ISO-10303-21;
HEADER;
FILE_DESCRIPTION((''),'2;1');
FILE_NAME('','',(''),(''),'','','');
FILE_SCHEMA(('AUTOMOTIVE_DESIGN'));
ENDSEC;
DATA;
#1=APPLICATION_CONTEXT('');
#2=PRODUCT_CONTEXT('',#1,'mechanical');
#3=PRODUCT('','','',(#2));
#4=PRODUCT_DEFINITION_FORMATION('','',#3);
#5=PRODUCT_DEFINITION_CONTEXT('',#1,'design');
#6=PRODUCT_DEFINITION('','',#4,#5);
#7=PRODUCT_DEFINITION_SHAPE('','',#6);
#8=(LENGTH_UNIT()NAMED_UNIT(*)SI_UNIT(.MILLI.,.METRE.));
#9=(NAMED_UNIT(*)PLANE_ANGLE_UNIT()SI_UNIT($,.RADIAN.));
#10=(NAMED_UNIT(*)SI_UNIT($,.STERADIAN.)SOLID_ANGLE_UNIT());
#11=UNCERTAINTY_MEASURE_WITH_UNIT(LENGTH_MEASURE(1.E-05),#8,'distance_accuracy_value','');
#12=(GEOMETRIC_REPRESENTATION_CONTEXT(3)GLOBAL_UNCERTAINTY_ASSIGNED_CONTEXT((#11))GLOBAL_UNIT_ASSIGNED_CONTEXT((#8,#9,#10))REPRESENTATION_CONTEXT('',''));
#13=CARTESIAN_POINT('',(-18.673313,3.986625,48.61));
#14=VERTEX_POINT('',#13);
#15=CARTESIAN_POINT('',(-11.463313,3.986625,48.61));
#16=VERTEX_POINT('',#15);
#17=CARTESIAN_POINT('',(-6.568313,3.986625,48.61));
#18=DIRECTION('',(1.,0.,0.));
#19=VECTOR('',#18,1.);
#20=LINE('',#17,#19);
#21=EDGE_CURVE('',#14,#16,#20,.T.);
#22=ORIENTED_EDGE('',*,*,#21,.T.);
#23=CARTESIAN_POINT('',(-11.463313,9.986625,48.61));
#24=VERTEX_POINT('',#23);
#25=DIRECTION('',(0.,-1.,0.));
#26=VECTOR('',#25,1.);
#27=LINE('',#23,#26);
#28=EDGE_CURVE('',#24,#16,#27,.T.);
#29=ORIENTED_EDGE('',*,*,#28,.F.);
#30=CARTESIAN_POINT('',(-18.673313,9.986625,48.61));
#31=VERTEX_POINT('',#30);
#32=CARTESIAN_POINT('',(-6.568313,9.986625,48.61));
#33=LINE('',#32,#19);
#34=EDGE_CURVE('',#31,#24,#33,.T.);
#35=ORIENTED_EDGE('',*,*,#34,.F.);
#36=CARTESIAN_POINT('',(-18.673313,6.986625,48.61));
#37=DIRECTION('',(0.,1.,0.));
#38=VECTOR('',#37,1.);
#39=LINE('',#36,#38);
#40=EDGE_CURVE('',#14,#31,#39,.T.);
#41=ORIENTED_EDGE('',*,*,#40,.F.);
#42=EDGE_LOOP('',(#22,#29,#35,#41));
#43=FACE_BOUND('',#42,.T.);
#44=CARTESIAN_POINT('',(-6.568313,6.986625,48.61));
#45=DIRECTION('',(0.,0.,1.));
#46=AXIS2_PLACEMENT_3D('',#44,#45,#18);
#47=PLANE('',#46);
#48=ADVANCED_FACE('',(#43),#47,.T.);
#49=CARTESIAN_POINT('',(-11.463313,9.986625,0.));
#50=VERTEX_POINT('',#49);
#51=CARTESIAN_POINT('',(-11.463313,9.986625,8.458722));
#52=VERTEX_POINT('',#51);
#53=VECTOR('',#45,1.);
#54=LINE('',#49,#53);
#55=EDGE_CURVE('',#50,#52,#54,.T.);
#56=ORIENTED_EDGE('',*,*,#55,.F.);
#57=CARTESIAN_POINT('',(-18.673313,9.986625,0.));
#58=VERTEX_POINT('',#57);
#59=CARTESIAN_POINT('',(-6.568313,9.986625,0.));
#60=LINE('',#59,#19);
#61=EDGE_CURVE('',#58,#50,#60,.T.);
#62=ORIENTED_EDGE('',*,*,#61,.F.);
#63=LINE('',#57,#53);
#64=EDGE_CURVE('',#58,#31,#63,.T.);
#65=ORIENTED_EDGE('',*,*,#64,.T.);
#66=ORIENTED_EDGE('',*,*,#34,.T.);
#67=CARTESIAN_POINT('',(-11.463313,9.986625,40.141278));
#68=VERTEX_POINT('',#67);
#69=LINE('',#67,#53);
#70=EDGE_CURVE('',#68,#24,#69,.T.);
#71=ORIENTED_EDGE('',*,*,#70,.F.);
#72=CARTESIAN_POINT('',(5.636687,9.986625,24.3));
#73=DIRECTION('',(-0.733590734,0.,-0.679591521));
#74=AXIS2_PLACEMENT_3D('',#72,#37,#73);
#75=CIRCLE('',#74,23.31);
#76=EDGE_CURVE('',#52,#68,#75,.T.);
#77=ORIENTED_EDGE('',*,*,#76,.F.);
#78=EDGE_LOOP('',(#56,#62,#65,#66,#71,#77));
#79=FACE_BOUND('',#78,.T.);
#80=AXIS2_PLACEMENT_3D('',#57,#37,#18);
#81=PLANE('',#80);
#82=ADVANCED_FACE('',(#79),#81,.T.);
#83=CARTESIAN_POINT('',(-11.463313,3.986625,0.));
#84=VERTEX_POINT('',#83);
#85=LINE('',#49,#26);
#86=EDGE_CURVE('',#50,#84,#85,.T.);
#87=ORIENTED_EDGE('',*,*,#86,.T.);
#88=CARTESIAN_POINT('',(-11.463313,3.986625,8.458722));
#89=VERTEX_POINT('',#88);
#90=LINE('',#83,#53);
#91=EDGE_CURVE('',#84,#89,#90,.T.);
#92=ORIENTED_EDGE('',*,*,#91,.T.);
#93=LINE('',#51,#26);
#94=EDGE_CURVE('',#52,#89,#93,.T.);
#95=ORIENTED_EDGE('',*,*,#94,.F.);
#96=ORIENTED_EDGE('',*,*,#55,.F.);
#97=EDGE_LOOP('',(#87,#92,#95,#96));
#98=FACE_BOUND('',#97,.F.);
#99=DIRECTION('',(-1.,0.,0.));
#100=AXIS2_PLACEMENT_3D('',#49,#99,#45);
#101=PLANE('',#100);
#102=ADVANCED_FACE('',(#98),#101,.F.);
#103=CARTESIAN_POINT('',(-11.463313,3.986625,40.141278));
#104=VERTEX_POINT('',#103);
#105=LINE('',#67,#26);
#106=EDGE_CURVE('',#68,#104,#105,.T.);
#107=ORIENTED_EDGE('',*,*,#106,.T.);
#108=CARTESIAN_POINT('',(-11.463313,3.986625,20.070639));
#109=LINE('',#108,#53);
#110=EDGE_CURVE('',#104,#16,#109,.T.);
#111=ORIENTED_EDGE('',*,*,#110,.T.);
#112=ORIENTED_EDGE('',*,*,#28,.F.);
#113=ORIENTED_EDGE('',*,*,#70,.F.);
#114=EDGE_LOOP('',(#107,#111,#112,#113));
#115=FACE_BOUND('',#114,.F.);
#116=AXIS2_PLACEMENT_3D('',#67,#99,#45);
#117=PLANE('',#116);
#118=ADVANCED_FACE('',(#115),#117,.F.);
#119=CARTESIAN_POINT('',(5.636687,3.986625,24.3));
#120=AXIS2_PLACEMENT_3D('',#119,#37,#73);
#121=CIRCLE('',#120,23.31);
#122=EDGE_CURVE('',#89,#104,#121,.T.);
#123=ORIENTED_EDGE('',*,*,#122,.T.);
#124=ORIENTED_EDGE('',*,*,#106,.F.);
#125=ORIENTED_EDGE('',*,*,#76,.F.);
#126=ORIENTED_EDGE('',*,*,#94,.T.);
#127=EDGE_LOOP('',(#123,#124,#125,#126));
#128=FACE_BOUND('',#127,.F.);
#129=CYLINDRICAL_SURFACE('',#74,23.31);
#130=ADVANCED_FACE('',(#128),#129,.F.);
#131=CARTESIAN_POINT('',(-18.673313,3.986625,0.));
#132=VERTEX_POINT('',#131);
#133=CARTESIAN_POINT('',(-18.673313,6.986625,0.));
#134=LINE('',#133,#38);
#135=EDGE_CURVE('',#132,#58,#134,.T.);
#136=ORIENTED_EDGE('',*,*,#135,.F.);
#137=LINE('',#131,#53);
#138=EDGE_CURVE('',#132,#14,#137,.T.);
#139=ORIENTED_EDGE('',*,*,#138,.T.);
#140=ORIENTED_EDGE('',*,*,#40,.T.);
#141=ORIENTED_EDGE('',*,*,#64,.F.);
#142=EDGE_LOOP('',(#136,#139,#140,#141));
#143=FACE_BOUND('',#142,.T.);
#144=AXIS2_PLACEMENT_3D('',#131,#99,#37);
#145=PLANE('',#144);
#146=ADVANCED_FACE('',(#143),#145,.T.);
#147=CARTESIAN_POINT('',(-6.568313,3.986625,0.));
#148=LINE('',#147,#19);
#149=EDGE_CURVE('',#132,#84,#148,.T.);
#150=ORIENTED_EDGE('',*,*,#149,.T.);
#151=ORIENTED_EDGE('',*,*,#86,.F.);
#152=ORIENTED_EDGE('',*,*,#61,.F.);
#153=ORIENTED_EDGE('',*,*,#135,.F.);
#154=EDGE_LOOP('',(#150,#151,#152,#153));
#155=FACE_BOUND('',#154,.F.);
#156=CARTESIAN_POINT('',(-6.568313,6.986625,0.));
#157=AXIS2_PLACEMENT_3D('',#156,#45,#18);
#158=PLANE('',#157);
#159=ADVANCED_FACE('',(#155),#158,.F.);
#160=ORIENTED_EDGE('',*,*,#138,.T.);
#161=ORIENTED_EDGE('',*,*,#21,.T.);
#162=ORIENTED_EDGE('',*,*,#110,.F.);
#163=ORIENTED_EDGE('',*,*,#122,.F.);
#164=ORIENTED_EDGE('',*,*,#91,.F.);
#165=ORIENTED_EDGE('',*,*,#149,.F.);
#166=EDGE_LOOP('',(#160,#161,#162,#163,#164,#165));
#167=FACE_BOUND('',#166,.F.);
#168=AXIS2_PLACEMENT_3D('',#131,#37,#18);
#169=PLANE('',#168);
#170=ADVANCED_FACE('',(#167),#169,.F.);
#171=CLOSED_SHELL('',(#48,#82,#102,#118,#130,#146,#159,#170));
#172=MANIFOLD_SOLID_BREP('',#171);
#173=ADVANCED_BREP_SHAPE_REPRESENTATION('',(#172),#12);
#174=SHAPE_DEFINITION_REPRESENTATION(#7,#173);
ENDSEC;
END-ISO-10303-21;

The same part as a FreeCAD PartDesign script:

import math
import FreeCAD as App
import Part
import Sketcher


def add_polygon(sketch, points):
    """Adds a closed chain of lines whose ends are joined by coincident constraints."""
    first, n = sketch.GeometryCount, len(points)
    for a, b in zip(points, points[1:] + points[:1]):
        sketch.addGeometry(Part.LineSegment(App.Vector(*a, 0), App.Vector(*b, 0)), False)
    for i in range(n):
        sketch.addConstraint(Sketcher.Constraint("Coincident", first + i, 2, first + (i + 1) % n, 1))

doc = App.newDocument("Part")
params = doc.addObject("Spreadsheet::Sheet", "Params")
for row, (alias, value) in enumerate([
    ("sketch1_height", "6 mm"),
    ("sketch1_width", "24.21 mm"),
    ("pad1_length", "48.61 mm"),
    ("sketch2_width", "17 mm"),
    ("sketch2_radius", "23.31 mm"),
    ("sketch2_height", "48.61 mm"),
], start=1):
    params.set(f"A{row}", alias)
    params.set(f"B{row}", "=" + value)
    params.setAlias(f"B{row}", alias)

body = doc.addObject("PartDesign::Body", "Body")

# Sketch on XY plane
sketch1 = doc.addObject("Sketcher::SketchObject", "Sketch")
body.addObject(sketch1)
sketch1.AttachmentSupport = (doc.XY_Plane, [""])
sketch1.MapMode = "FlatFace"
add_polygon(sketch1, [(-19, 10), (-19, 4), (6, 4), (6, 10)])  # lines 0-3
sketch1.addConstraint([
    Sketcher.Constraint("Vertical", 0),
    Sketcher.Constraint("Horizontal", 1),
    Sketcher.Constraint("Vertical", 2),
    Sketcher.Constraint("Horizontal", 3),
    Sketcher.Constraint("DistanceY", 0, 2, 0, 1, 6.0),
    Sketcher.Constraint("DistanceX", 1, 1, 1, 2, 24.21),
    Sketcher.Constraint("DistanceX", 0, 2, -1, 1, 18.673313),
    Sketcher.Constraint("DistanceY", -1, 1, 0, 2, 3.986625),
])
sketch1.setExpression("Constraints[8]", "Params.sketch1_height")
sketch1.setExpression("Constraints[9]", "Params.sketch1_width")
pad1 = doc.addObject("PartDesign::Pad", "Pad")
body.addObject(pad1)
pad1.Profile = sketch1
pad1.setExpression("Length", "Params.pad1_length")

# Sketch on XZ plane
sketch2 = doc.addObject("Sketcher::SketchObject", "Sketch001")
body.addObject(sketch2)
sketch2.AttachmentSupport = (doc.XZ_Plane, [""])
sketch2.MapMode = "FlatFace"
sketch2.AttachmentOffset = App.Placement(App.Vector(0, 0, -9.986625), App.Rotation())
sketch2.addGeometry([
    Part.LineSegment(App.Vector(-11, 0, 0), App.Vector(-11, 8, 0)),  # 0
    Part.ArcOfCircle(Part.Circle(App.Vector(6, 24, 0), App.Vector(0, 0, 1), 23), math.radians(137), math.radians(223)),  # 1
    Part.LineSegment(App.Vector(-11, 40, 0), App.Vector(-11, 49, 0)),  # 2
    Part.LineSegment(App.Vector(-11, 49, 0), App.Vector(6, 49, 0)),  # 3
    Part.LineSegment(App.Vector(6, 49, 0), App.Vector(6, 0, 0)),  # 4
    Part.LineSegment(App.Vector(6, 0, 0), App.Vector(-11, 0, 0)),  # 5
], False)
sketch2.addConstraint([
    Sketcher.Constraint("Coincident", 0, 2, 1, 2),
    Sketcher.Constraint("Coincident", 1, 1, 2, 1),
    Sketcher.Constraint("Coincident", 2, 2, 3, 1),
    Sketcher.Constraint("Coincident", 3, 2, 4, 1),
    Sketcher.Constraint("Coincident", 4, 2, 5, 1),
    Sketcher.Constraint("Coincident", 5, 2, 0, 1),
    Sketcher.Constraint("Vertical", 0),
    Sketcher.Constraint("Vertical", 2),
    Sketcher.Constraint("Horizontal", 3),
    Sketcher.Constraint("Vertical", 4),
    Sketcher.Constraint("Horizontal", 5),
    Sketcher.Constraint("PointOnObject", 4, 2, -1),
    Sketcher.Constraint("Vertical", 0, 2, 1, 1),
    Sketcher.Constraint("DistanceX", 3, 1, 3, 2, 17.0),
    Sketcher.Constraint("Radius", 1, 23.31),
    Sketcher.Constraint("DistanceY", 4, 2, 4, 1, 48.61),
    Sketcher.Constraint("DistanceY", -1, 1, 1, 3, 24.3),
    Sketcher.Constraint("DistanceX", 0, 2, 1, 3, 17.1),
    Sketcher.Constraint("DistanceX", -1, 1, 1, 3, 5.636687),
])
sketch2.setExpression("Constraints[13]", "Params.sketch2_width")
sketch2.setExpression("Constraints[14]", "Params.sketch2_radius")
sketch2.setExpression("Constraints[15]", "Params.sketch2_height")
pocket1 = doc.addObject("PartDesign::Pocket", "Pocket")
body.addObject(pocket1)
pocket1.Profile = sketch2
pocket1.Type = "ThroughAll"
pocket1.Reversed = True

doc.recompute()
